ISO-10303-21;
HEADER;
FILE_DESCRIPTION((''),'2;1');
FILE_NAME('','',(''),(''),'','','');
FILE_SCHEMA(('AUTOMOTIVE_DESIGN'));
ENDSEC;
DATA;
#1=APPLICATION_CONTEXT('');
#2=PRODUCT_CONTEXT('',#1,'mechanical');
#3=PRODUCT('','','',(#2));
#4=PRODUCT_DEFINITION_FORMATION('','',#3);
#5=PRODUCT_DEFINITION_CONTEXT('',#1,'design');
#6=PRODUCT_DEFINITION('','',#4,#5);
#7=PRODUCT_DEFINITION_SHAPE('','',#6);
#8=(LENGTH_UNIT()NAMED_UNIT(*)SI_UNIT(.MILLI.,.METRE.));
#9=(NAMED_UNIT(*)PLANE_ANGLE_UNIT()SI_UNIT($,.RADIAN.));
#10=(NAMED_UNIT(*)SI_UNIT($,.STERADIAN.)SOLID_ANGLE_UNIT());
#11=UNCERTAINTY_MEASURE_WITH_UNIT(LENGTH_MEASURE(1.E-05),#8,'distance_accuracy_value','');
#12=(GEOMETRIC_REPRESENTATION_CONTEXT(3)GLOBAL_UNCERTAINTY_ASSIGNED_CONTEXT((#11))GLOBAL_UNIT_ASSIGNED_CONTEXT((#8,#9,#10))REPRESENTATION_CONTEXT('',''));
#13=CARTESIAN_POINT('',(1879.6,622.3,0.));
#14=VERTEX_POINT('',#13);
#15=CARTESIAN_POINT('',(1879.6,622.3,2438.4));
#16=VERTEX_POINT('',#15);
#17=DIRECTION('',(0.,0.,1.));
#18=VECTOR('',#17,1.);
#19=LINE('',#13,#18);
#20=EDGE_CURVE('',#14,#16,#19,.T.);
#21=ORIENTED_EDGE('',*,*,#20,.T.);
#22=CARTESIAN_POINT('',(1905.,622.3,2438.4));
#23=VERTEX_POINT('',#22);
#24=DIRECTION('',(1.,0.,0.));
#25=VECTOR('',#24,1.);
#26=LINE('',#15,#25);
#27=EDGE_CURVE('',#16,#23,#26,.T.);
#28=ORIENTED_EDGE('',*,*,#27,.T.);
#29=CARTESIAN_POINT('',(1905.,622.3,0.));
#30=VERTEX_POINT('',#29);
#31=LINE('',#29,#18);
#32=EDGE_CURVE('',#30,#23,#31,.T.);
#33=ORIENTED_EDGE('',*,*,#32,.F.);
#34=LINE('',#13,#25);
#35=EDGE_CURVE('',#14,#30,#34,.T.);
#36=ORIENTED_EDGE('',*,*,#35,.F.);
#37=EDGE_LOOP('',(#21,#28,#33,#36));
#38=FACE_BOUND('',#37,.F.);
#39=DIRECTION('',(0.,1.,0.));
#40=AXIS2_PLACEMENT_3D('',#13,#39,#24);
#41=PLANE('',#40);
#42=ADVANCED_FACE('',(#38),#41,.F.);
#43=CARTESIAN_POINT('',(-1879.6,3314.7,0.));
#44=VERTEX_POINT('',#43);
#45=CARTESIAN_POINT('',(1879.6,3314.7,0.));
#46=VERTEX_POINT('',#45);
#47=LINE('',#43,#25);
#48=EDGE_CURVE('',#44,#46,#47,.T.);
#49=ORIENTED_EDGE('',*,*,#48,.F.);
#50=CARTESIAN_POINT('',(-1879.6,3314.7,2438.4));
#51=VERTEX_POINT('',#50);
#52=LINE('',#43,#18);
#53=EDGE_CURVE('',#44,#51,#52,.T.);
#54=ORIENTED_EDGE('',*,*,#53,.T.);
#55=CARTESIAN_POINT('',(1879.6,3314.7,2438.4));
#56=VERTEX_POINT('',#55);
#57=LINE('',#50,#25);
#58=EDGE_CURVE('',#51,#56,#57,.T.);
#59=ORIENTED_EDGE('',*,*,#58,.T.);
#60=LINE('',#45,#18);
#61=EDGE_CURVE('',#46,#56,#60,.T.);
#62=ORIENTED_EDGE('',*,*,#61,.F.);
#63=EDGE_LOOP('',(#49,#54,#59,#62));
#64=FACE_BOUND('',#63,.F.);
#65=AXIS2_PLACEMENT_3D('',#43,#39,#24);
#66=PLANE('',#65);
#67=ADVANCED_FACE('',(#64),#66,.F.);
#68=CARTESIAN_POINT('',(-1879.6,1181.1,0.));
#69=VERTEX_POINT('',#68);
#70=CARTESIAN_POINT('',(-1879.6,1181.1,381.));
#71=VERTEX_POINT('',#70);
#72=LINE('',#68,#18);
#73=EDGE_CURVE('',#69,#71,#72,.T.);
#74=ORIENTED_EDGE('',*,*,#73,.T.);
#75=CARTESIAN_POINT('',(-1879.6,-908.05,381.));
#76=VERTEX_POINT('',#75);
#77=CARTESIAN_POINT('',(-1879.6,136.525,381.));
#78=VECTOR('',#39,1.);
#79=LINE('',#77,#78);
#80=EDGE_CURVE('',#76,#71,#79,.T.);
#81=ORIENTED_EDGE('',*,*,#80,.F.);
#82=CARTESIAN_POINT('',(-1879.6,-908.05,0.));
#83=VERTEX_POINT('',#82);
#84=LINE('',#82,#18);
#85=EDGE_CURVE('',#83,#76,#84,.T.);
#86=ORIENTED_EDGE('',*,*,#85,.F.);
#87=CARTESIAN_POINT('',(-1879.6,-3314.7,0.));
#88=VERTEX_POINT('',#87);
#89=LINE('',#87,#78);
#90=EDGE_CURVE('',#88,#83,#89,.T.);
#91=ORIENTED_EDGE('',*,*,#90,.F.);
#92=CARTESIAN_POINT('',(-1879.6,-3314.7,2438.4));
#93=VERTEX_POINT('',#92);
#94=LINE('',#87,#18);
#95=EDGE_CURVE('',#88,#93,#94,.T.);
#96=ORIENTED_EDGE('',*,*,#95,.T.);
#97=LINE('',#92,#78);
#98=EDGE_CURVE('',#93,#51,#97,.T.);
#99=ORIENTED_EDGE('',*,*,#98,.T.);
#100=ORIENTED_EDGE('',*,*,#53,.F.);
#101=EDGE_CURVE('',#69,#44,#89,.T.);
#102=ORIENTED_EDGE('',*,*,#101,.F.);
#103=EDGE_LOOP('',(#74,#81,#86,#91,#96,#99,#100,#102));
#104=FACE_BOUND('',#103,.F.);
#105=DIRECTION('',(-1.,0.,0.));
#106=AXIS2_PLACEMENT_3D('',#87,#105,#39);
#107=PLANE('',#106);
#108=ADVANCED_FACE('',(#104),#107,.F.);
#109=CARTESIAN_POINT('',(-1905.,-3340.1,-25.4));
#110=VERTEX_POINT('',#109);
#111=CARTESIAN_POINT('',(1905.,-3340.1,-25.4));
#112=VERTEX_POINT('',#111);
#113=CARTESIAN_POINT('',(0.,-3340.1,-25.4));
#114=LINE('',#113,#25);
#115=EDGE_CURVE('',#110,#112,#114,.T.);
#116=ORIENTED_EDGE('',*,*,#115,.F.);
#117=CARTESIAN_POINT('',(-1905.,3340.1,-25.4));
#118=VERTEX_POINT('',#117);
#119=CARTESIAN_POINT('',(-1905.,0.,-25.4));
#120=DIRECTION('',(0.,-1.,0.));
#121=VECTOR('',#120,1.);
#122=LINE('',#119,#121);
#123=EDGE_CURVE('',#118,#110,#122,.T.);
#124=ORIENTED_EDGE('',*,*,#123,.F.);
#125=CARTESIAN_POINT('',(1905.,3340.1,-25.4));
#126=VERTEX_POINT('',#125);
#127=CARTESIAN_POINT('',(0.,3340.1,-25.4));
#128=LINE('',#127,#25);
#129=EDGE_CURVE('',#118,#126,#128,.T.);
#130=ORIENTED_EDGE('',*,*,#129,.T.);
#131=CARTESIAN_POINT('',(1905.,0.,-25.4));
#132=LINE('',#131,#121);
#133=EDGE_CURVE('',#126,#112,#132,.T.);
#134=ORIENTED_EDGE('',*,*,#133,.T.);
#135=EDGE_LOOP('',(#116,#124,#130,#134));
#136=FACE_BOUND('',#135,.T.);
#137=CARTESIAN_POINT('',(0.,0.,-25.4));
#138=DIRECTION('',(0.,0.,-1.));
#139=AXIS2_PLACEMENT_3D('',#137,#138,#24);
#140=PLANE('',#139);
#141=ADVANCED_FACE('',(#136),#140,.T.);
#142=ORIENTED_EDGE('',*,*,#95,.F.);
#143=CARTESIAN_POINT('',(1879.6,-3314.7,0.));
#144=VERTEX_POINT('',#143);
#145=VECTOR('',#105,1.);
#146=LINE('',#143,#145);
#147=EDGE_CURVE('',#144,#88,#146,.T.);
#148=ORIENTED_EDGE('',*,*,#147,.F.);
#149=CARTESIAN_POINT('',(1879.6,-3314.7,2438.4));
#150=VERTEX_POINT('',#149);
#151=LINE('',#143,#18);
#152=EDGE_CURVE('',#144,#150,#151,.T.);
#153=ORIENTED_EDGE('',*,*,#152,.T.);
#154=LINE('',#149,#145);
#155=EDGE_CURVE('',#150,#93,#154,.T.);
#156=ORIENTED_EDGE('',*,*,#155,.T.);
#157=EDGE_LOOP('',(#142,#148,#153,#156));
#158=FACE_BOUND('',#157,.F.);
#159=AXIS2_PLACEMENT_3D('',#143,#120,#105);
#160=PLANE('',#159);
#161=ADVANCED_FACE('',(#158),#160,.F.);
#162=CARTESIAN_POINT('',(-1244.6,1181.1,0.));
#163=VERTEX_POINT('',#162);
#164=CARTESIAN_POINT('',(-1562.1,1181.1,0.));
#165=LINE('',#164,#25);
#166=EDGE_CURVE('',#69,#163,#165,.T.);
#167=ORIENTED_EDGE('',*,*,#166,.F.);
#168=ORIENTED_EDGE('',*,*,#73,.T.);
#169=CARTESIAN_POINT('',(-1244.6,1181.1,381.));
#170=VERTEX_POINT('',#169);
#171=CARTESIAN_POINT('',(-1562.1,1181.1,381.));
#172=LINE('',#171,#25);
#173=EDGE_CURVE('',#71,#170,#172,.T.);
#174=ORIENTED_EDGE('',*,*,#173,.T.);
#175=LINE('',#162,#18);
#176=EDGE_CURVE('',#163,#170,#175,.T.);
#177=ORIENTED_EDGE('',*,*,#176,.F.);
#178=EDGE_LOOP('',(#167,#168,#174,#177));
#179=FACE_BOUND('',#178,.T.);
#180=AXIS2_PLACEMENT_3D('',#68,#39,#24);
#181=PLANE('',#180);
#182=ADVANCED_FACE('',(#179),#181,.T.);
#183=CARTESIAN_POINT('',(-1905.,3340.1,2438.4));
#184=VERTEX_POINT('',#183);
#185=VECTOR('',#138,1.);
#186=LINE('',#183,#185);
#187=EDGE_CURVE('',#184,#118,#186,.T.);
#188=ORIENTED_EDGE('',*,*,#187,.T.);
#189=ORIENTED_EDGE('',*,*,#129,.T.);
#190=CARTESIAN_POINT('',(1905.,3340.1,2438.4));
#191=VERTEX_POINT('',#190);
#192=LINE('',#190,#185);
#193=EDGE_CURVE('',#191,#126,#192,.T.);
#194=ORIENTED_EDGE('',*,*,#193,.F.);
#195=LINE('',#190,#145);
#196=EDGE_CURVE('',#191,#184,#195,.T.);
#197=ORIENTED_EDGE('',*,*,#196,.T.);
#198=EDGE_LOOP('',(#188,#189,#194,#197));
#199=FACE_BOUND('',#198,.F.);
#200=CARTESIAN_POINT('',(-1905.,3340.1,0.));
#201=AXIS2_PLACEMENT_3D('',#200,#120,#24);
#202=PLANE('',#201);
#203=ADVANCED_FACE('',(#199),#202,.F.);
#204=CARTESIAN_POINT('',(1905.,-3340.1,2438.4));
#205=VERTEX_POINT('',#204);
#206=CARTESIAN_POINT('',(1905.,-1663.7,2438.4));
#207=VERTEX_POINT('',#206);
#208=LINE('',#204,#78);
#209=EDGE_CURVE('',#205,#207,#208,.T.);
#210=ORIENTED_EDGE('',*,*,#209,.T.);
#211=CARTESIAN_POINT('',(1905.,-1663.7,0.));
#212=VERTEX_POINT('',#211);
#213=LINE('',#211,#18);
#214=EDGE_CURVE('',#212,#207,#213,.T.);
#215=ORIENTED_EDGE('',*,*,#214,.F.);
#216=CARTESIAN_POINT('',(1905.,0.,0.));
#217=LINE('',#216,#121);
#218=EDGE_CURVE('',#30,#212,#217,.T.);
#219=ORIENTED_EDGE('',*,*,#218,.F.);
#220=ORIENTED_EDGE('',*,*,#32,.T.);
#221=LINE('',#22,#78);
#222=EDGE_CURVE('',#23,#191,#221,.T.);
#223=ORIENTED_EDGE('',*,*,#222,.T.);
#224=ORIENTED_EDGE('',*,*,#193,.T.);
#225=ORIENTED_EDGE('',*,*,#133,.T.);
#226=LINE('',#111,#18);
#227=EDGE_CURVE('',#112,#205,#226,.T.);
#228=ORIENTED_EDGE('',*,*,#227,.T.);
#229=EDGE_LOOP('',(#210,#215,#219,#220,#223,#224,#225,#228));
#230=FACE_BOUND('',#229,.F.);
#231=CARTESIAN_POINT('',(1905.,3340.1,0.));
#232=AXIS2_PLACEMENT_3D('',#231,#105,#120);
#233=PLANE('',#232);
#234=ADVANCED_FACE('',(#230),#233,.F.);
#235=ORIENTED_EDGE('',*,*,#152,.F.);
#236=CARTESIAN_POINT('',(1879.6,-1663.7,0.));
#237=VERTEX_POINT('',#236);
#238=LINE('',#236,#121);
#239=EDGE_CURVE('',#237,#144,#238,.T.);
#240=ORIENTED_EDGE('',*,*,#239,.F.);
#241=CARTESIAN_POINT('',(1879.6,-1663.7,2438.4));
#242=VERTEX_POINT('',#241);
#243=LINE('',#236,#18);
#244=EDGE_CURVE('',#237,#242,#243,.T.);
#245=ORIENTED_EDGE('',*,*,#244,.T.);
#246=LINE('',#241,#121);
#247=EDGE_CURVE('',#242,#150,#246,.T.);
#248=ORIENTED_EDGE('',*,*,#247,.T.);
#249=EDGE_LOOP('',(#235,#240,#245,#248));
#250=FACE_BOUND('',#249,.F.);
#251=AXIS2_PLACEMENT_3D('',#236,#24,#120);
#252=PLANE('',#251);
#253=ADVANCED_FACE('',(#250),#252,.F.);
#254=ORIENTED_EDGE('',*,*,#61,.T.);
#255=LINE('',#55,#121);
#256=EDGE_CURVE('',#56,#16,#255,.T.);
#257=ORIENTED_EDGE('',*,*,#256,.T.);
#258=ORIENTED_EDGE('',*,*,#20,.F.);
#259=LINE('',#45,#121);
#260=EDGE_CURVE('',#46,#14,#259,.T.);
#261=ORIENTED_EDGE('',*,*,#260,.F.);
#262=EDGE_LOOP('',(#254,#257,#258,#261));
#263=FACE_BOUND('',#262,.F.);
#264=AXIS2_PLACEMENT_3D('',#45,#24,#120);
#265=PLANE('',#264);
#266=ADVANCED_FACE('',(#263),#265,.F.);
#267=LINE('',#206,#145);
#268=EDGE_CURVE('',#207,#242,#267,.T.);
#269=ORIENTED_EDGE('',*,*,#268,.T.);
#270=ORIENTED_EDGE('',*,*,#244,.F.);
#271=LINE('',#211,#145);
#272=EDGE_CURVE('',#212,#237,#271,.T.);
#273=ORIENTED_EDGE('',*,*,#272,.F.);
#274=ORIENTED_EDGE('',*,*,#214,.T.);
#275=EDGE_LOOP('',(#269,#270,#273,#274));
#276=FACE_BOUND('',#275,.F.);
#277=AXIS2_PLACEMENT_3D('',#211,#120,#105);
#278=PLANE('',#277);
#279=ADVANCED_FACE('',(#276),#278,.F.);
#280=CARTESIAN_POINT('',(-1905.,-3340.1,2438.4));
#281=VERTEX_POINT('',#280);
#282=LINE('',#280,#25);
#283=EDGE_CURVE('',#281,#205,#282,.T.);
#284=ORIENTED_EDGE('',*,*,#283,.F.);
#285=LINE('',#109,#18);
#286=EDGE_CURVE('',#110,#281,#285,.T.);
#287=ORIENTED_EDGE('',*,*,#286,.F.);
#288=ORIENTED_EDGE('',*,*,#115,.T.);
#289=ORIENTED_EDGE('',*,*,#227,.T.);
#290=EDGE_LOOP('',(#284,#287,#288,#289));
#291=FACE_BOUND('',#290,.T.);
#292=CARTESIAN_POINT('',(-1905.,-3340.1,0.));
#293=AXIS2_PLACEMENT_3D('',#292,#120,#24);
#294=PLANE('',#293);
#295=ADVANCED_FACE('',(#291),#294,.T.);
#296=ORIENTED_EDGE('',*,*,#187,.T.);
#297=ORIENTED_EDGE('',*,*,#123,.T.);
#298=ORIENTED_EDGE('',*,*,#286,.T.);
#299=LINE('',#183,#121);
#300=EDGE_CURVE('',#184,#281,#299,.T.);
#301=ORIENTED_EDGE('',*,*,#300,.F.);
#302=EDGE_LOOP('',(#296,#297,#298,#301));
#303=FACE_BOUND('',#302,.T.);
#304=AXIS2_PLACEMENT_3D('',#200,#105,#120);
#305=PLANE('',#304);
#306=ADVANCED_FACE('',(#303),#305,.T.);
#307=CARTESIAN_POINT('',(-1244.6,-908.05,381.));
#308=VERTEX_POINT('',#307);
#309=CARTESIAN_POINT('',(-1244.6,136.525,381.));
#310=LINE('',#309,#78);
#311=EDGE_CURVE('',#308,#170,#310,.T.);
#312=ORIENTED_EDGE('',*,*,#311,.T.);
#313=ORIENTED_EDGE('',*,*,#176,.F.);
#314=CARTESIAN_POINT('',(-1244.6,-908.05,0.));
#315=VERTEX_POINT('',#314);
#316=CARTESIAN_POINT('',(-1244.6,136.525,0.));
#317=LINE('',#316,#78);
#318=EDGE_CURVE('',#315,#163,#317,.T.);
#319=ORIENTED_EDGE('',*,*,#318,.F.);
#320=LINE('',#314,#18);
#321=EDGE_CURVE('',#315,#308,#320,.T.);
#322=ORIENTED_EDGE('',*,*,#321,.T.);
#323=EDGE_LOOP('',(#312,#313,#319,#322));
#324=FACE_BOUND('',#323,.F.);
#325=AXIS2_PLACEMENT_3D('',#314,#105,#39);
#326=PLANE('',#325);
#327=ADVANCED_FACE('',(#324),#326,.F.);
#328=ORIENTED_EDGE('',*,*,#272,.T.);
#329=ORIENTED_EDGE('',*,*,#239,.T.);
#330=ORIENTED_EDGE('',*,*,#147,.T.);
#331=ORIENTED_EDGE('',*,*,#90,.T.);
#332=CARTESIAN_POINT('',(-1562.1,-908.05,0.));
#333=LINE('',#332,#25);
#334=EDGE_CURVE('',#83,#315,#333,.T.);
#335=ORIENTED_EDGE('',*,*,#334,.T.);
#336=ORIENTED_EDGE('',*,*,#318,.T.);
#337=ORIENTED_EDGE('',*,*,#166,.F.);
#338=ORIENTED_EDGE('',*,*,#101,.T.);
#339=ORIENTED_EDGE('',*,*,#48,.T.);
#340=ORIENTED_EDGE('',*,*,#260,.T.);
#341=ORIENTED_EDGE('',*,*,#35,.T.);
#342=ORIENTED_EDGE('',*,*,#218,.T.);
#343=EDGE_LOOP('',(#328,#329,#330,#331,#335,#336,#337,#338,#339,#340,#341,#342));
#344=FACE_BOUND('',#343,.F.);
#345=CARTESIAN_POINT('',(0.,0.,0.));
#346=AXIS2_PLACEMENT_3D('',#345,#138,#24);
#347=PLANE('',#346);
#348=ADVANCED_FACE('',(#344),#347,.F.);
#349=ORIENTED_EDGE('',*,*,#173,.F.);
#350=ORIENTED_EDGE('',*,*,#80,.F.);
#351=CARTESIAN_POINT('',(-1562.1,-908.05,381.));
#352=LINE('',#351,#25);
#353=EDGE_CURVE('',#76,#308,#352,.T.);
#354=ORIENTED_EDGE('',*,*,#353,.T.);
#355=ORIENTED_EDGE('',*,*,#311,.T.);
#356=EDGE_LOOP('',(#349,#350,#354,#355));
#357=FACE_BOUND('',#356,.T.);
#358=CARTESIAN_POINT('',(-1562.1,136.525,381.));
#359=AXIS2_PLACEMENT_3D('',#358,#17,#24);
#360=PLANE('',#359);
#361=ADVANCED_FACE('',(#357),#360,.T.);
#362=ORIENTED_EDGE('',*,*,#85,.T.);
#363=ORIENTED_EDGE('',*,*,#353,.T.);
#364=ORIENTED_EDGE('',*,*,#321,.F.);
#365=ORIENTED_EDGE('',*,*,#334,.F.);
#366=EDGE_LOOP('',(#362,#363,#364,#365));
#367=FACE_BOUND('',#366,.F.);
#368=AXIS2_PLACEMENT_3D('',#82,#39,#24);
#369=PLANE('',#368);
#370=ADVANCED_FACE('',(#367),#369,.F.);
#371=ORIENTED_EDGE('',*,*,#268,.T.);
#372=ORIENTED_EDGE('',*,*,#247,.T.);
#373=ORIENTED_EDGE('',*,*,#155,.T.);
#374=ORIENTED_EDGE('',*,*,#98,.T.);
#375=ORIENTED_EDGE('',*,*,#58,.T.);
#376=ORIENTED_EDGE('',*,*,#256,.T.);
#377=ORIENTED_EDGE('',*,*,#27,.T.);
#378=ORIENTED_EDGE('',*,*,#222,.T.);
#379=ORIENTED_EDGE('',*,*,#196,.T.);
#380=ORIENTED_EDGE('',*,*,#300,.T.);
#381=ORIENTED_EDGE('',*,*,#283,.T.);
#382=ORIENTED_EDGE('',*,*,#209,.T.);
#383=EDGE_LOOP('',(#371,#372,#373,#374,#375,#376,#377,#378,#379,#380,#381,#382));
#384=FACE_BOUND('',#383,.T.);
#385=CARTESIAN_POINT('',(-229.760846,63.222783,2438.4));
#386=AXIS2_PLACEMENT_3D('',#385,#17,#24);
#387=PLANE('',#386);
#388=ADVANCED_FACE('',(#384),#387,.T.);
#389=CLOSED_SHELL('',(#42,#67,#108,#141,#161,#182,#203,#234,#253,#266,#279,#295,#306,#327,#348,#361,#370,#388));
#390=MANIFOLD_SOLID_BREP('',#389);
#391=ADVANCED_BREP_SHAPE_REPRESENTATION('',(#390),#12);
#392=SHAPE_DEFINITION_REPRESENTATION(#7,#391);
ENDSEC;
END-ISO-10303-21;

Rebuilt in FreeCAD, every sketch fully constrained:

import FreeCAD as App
import Part
import Sketcher

V = App.Vector
Q = App.Units.Quantity

doc = App.newDocument("Part")
body = doc.addObject("PartDesign::Body", "Body")

# Sketch on XY plane
sketch1 = body.newObject("Sketcher::SketchObject", "Sketch")
sketch1.AttachmentSupport = (doc.getObject("XY_Plane"), [""])
sketch1.MapMode = "FlatFace"
sketch1.addGeometry([
    Part.LineSegment(V(1905, 3340.1, 0), V(-1905, 3340.1, 0)),  # 0
    Part.LineSegment(V(-1905, 3340.1, 0), V(-1905, -3340.1, 0)),  # 1
    Part.LineSegment(V(-1905, -3340.1, 0), V(1905, -3340.1, 0)),  # 2
    Part.LineSegment(V(1905, -3340.1, 0), V(1905, -1663.7, 0)),  # 3
    Part.LineSegment(V(1905, -1663.7, 0), V(1879.6, -1663.7, 0)),  # 4
    Part.LineSegment(V(1879.6, -1663.7, 0), V(1879.6, -3314.7, 0)),  # 5
    Part.LineSegment(V(1879.6, -3314.7, 0), V(-1879.6, -3314.7, 0)),  # 6
    Part.LineSegment(V(-1879.6, -3314.7, 0), V(-1879.6, 3314.7, 0)),  # 7
    Part.LineSegment(V(-1879.6, 3314.7, 0), V(1879.6, 3314.7, 0)),  # 8
    Part.LineSegment(V(1879.6, 3314.7, 0), V(1879.6, 622.3, 0)),  # 9
    Part.LineSegment(V(1879.6, 622.3, 0), V(1905, 622.3, 0)),  # 10
    Part.LineSegment(V(1905, 622.3, 0), V(1905, 3340.1, 0)),  # 11
], False)
sketch1.addConstraint([
    Sketcher.Constraint("Coincident", 0, 2, 1, 1),
    Sketcher.Constraint("Coincident", 1, 2, 2, 1),
    Sketcher.Constraint("Coincident", 2, 2, 3, 1),
    Sketcher.Constraint("Coincident", 3, 2, 4, 1),
    Sketcher.Constraint("Coincident", 4, 2, 5, 1),
    Sketcher.Constraint("Coincident", 5, 2, 6, 1),
    Sketcher.Constraint("Coincident", 6, 2, 7, 1),
    Sketcher.Constraint("Coincident", 7, 2, 8, 1),
    Sketcher.Constraint("Coincident", 8, 2, 9, 1),
    Sketcher.Constraint("Coincident", 9, 2, 10, 1),
    Sketcher.Constraint("Coincident", 10, 2, 11, 1),
    Sketcher.Constraint("Coincident", 11, 2, 0, 1),
    Sketcher.Constraint("Horizontal", 0),
    Sketcher.Constraint("Vertical", 1),
    Sketcher.Constraint("Horizontal", 2),
    Sketcher.Constraint("Vertical", 3),
    Sketcher.Constraint("Horizontal", 4),
    Sketcher.Constraint("Vertical", 5),
    Sketcher.Constraint("Horizontal", 6),
    Sketcher.Constraint("Vertical", 7),
    Sketcher.Constraint("Horizontal", 8),
    Sketcher.Constraint("Vertical", 9),
    Sketcher.Constraint("Horizontal", 10),
    Sketcher.Constraint("Vertical", 11),
    Sketcher.Constraint("Symmetric", 0, 2, 2, 2, -1, 1),
    Sketcher.Constraint("Symmetric", 5, 2, 7, 2, -1, 1),
    Sketcher.Constraint("Vertical", 5, 2, 8, 2),
    Sketcher.Constraint("Vertical", 3, 2, 10, 2),
    Sketcher.Constraint("DistanceX", 0, 2, 0, 1, Q("150 in")),
    Sketcher.Constraint("DistanceX", 4, 2, 4, 1, Q("1 in")),
    Sketcher.Constraint("DistanceY", 1, 2, 1, 1, Q("263 in")),
    Sketcher.Constraint("DistanceY", 3, 1, 3, 2, Q("66 in")),
    Sketcher.Constraint("DistanceY", 5, 2, 5, 1, Q("65 in")),
    Sketcher.Constraint("DistanceY", 9, 2, 9, 1, Q("106 in")),
])
pad1 = body.newObject("PartDesign::Pad", "Pad")
pad1.Profile = sketch1
pad1.Length = Q("96 in")

# Sketch on XY plane
sketch2 = body.newObject("Sketcher::SketchObject", "Sketch001")
sketch2.AttachmentSupport = (doc.getObject("XY_Plane"), [""])
sketch2.MapMode = "FlatFace"
sketch2.addGeometry([
    Part.LineSegment(V(-1905, -3340.1, 0), V(-1905, 3340.1, 0)),
    Part.LineSegment(V(-1905, 3340.1, 0), V(1905, 3340.1, 0)),
    Part.LineSegment(V(1905, 3340.1, 0), V(1905, -3340.1, 0)),
    Part.LineSegment(V(1905, -3340.1, 0), V(-1905, -3340.1, 0)),
], False)
sketch2.addConstraint([
    Sketcher.Constraint("Coincident", 0, 2, 1, 1),
    Sketcher.Constraint("Coincident", 1, 2, 2, 1),
    Sketcher.Constraint("Coincident", 2, 2, 3, 1),
    Sketcher.Constraint("Coincident", 3, 2, 0, 1),
    Sketcher.Constraint("Vertical", 0),
    Sketcher.Constraint("Horizontal", 1),
    Sketcher.Constraint("Vertical", 2),
    Sketcher.Constraint("Horizontal", 3),
    Sketcher.Constraint("Symmetric", 0, 2, 2, 2, -1, 1),
    Sketcher.Constraint("DistanceX", 1, 1, 1, 2, Q("150 in")),
    Sketcher.Constraint("DistanceY", 0, 1, 0, 2, Q("263 in")),
])
pad2 = body.newObject("PartDesign::Pad", "Pad001")
pad2.Profile = sketch2
pad2.Length = Q("1 in")
pad2.Reversed = True

# Sketch on XY plane
sketch3 = body.newObject("Sketcher::SketchObject", "Sketch002")
sketch3.AttachmentSupport = (doc.getObject("XY_Plane"), [""])
sketch3.MapMode = "FlatFace"
sketch3.addGeometry([
    Part.LineSegment(V(-1879.6, 1181.1, 0), V(-1879.6, -908.05, 0)),
    Part.LineSegment(V(-1879.6, -908.05, 0), V(-1244.6, -908.05, 0)),
    Part.LineSegment(V(-1244.6, -908.05, 0), V(-1244.6, 1181.1, 0)),
    Part.LineSegment(V(-1244.6, 1181.1, 0), V(-1879.6, 1181.1, 0)),
], False)
sketch3.addConstraint([
    Sketcher.Constraint("Coincident", 0, 2, 1, 1),
    Sketcher.Constraint("Coincident", 1, 2, 2, 1),
    Sketcher.Constraint("Coincident", 2, 2, 3, 1),
    Sketcher.Constraint("Coincident", 3, 2, 0, 1),
    Sketcher.Constraint("Vertical", 0),
    Sketcher.Constraint("Horizontal", 1),
    Sketcher.Constraint("Vertical", 2),
    Sketcher.Constraint("Horizontal", 3),
    Sketcher.Constraint("DistanceX", 1, 1, 1, 2, Q("25 in")),
    Sketcher.Constraint("DistanceX", 0, 2, -1, 1, Q("74 in")),
    Sketcher.Constraint("DistanceY", 0, 2, 0, 1, Q("82.25 in")),
    Sketcher.Constraint("DistanceY", -1, 1, 2, 2, Q("46.5 in")),
])
pad3 = body.newObject("PartDesign::Pad", "Pad002")
pad3.Profile = sketch3
pad3.Length = Q("15 in")

doc.recompute()
